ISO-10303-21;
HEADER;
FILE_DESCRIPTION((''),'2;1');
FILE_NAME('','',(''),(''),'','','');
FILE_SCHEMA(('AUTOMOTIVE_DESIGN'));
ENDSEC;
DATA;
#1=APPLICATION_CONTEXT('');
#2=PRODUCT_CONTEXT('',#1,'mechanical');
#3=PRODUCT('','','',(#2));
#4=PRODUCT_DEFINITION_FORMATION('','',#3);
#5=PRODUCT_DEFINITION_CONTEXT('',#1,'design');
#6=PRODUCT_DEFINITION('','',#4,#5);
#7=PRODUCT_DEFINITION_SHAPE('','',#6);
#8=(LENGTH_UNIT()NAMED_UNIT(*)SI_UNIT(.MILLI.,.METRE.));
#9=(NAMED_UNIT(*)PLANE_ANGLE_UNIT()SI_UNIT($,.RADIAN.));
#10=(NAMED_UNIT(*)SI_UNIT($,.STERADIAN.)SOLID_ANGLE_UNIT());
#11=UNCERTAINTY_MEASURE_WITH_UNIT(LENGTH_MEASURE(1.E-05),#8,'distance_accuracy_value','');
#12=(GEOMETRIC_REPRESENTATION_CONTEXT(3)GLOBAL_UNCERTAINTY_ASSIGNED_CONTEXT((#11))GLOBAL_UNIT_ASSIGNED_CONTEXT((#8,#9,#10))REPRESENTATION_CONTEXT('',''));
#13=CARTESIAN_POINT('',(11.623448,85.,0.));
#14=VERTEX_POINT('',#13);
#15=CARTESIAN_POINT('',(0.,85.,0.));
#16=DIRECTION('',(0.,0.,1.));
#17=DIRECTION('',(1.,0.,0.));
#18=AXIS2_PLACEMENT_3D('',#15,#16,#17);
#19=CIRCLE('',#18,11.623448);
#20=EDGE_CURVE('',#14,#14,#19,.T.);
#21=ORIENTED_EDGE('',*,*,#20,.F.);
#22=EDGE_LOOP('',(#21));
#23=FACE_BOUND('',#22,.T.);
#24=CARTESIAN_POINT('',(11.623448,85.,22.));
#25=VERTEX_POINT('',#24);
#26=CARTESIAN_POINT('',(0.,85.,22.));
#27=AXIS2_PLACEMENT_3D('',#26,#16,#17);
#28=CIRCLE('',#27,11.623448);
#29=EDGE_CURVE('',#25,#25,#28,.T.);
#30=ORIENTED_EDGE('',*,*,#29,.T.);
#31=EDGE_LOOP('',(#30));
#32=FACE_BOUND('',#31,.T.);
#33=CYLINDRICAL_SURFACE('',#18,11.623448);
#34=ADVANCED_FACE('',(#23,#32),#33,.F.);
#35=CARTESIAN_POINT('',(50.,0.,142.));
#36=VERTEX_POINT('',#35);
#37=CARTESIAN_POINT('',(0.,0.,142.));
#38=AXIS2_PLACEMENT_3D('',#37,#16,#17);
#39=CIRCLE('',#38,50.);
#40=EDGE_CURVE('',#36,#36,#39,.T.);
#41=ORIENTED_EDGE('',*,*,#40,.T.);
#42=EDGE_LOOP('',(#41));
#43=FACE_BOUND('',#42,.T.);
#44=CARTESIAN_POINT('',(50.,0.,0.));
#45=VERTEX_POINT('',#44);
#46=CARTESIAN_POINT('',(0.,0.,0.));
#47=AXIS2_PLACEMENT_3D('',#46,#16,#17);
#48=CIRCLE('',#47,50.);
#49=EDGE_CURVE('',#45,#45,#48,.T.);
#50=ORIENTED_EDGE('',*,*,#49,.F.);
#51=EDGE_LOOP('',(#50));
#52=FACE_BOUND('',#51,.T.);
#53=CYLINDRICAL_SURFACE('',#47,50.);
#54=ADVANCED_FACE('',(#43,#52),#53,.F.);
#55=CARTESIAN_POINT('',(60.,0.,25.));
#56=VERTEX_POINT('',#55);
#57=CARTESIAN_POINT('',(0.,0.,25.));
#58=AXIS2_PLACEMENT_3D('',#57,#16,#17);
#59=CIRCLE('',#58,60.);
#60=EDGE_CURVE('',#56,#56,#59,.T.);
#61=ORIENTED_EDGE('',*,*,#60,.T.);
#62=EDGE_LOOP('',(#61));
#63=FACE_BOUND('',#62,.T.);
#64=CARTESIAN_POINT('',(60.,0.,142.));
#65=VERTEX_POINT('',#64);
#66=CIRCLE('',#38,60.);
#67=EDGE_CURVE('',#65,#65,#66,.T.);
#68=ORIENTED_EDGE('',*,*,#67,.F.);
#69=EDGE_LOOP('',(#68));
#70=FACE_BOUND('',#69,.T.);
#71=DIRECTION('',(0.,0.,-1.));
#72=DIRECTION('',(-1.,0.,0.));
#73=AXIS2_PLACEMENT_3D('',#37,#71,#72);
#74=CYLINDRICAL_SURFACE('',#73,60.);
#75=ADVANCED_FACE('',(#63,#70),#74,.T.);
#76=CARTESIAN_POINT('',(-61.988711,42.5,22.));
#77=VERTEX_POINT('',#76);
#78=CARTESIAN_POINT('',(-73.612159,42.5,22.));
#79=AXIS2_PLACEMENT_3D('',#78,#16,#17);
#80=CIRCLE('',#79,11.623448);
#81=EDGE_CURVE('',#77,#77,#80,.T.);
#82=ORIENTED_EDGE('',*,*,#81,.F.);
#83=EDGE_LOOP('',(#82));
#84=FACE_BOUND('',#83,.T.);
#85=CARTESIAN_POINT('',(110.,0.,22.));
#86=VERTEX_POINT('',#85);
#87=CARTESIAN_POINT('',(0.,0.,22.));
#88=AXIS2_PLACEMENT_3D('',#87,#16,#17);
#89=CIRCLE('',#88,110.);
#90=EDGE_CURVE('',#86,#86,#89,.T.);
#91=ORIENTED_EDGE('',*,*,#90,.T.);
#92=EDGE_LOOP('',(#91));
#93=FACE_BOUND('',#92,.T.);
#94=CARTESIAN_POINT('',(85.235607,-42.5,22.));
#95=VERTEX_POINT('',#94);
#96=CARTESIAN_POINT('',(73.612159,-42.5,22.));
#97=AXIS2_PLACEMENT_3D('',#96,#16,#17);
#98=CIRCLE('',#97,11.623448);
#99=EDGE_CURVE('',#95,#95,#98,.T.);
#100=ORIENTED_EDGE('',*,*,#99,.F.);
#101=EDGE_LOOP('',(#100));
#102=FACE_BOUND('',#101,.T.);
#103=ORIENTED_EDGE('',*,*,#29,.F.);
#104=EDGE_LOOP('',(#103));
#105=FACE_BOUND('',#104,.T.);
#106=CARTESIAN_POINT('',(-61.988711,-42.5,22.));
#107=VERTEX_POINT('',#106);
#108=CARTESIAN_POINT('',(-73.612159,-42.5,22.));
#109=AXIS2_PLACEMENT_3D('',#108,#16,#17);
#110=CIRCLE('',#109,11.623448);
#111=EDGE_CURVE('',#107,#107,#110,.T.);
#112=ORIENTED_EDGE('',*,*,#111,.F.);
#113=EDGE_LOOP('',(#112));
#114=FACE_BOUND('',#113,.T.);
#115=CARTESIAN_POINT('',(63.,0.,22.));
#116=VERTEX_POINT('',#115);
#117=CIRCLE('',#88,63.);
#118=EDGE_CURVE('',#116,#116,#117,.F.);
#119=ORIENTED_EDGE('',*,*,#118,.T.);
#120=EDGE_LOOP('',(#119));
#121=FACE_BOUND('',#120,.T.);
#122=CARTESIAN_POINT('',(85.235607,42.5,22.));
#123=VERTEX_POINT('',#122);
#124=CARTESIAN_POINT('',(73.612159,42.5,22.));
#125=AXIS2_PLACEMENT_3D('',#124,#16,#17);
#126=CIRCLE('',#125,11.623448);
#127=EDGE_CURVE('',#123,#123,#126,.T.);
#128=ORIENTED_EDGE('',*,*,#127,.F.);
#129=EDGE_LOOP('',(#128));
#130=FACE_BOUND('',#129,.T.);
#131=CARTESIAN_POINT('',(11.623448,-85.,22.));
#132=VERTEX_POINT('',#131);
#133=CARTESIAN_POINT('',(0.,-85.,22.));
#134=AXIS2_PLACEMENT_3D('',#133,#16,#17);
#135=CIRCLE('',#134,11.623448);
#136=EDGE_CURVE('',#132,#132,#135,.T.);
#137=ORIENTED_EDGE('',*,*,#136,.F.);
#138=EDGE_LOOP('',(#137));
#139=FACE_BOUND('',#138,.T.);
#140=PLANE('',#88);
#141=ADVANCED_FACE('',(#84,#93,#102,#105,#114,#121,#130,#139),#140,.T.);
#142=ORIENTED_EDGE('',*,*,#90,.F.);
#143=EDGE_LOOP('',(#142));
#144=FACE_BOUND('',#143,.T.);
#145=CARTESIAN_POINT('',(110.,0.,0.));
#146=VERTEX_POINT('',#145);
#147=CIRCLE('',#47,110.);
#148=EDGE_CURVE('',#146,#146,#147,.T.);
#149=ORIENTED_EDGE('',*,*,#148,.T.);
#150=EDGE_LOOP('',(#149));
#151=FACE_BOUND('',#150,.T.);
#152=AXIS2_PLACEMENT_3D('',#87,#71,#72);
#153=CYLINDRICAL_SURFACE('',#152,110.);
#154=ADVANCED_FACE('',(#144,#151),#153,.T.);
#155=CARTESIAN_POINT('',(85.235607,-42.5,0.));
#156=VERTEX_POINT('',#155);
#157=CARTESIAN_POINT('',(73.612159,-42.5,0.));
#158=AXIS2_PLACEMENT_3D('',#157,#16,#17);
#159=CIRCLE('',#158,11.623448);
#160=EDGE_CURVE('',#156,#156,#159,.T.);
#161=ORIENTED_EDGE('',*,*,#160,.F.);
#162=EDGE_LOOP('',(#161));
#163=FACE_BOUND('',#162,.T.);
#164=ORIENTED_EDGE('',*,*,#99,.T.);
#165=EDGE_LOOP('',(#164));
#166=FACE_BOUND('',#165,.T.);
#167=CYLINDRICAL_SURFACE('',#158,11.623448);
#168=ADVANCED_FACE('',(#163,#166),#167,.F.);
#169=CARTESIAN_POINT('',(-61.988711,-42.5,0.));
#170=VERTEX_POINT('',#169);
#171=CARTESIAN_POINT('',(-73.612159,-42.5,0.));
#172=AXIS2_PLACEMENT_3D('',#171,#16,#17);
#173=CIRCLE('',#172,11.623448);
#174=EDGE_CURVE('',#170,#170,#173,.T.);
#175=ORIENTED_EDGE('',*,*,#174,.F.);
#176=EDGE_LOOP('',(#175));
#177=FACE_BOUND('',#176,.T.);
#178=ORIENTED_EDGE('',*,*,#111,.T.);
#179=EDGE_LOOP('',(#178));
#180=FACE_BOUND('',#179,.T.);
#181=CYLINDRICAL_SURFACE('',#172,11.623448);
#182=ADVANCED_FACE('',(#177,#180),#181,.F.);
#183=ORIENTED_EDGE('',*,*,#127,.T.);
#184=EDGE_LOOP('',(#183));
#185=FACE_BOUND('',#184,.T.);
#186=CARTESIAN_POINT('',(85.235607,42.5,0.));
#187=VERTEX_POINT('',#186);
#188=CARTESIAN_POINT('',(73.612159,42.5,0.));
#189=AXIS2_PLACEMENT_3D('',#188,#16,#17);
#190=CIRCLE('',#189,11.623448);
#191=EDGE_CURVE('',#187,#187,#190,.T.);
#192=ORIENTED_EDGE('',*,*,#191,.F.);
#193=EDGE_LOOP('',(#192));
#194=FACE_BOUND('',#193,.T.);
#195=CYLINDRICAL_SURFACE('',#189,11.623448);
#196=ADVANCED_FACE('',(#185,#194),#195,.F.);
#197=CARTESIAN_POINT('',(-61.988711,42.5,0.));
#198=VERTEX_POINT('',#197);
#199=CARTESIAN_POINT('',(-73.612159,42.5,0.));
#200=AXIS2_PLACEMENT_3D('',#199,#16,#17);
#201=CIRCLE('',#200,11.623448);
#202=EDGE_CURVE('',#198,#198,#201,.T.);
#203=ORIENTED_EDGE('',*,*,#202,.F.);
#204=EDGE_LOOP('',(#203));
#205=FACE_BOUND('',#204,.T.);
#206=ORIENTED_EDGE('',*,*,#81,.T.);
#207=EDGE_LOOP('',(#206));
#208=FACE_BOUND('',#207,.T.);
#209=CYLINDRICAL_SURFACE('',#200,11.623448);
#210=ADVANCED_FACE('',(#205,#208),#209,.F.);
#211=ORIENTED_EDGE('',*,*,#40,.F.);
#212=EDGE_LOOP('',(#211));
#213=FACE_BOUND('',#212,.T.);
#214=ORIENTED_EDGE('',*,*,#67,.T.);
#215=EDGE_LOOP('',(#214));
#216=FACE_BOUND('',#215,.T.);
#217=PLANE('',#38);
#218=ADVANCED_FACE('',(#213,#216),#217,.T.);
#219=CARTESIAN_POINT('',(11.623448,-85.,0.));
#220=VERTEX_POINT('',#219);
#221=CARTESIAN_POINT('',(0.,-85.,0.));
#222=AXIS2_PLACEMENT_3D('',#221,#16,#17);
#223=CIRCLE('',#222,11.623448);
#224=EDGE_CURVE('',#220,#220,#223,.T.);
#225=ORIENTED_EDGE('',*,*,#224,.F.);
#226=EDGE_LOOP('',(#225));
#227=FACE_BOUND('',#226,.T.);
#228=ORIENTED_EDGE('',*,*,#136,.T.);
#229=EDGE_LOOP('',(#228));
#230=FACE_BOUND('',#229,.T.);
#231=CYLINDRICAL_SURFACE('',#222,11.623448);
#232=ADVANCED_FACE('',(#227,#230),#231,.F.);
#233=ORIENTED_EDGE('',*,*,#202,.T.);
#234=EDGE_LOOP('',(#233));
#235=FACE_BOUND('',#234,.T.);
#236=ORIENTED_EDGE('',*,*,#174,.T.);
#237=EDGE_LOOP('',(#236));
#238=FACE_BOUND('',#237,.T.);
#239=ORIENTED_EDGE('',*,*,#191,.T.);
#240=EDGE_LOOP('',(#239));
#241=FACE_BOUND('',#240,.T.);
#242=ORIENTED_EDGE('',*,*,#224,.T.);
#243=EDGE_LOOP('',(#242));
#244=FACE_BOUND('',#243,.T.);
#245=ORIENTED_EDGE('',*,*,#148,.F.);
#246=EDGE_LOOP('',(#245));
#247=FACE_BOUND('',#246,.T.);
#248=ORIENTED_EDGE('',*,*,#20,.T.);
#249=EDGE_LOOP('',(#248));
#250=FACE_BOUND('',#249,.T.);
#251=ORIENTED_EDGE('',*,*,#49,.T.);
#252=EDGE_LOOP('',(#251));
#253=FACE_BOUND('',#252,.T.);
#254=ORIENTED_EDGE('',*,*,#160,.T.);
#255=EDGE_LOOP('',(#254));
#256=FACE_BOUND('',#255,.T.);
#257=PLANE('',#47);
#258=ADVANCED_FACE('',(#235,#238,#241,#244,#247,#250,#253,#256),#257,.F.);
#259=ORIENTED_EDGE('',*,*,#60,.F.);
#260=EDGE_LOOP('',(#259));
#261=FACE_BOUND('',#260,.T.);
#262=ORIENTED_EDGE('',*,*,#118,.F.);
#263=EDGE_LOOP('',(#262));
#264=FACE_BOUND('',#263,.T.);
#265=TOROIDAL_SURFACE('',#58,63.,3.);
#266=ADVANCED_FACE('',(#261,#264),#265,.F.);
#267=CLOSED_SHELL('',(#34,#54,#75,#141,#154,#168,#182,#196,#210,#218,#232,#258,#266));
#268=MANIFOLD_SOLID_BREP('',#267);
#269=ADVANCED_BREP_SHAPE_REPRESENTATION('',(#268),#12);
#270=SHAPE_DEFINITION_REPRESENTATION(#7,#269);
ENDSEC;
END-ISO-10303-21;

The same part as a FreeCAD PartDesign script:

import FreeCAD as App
import Part
import Sketcher


def edges_at(feature, points):
    """Names of the edges that pass closest to the given points."""
    edges = feature.Shape.Edges
    near = lambda p: min(range(len(edges)), key=lambda i: edges[i].distToShape(Part.Vertex(*p))[0])
    return sorted({f"Edge{near(p) + 1}" for p in points})

doc = App.newDocument("Part")
params = doc.addObject("Spreadsheet::Sheet", "Params")
for row, (alias, value) in enumerate([
    ("sketch1_diameter", "220 mm"),
    ("pad1_length", "22 mm"),
    ("sketch2_diameter", "120 mm"),
    ("pad2_length", "120 mm"),
    ("sketch3_diameter", "100 mm"),
    ("fillet_radius", "3 mm"),
], start=1):
    params.set(f"A{row}", alias)
    params.set(f"B{row}", "=" + value)
    params.setAlias(f"B{row}", alias)

body = doc.addObject("PartDesign::Body", "Body")

sketch1 = doc.addObject("Sketcher::SketchObject", "Sketch")
body.addObject(sketch1)
sketch1.AttachmentSupport = (doc.XY_Plane, [""])
sketch1.MapMode = "FlatFace"
sketch1.addGeometry(Part.Circle(App.Vector(0, 0, 0), App.Vector(0, 0, 1), 110), False)
sketch1.addConstraint(Sketcher.Constraint("Coincident", 0, 3, -1, 1))
sketch1.addConstraint(Sketcher.Constraint("Diameter", 0, 220.0))
sketch1.setExpression("Constraints[1]", "Params.sketch1_diameter")
pad1 = doc.addObject("PartDesign::Pad", "Pad")
body.addObject(pad1)
pad1.Profile = sketch1
pad1.setExpression("Length", "Params.pad1_length")

sketch2 = doc.addObject("Sketcher::SketchObject", "Sketch001")
body.addObject(sketch2)
sketch2.AttachmentSupport = (doc.XY_Plane, [""])
sketch2.MapMode = "FlatFace"
sketch2.AttachmentOffset = App.Placement(App.Vector(0, 0, 22), App.Rotation())
sketch2.addGeometry(Part.Circle(App.Vector(0, 0, 0), App.Vector(0, 0, 1), 60), False)
sketch2.addConstraint(Sketcher.Constraint("Coincident", 0, 3, -1, 1))
sketch2.addConstraint(Sketcher.Constraint("Diameter", 0, 120.0))
sketch2.setExpression("Constraints[1]", "Params.sketch2_diameter")
pad2 = doc.addObject("PartDesign::Pad", "Pad001")
body.addObject(pad2)
pad2.Profile = sketch2
pad2.setExpression("Length", "Params.pad2_length")

sketch3 = doc.addObject("Sketcher::SketchObject", "Sketch002")
body.addObject(sketch3)
sketch3.AttachmentSupport = (doc.XY_Plane, [""])
sketch3.MapMode = "FlatFace"
sketch3.AttachmentOffset = App.Placement(App.Vector(0, 0, 142), App.Rotation())
sketch3.addGeometry(Part.Circle(App.Vector(0, 0, 0), App.Vector(0, 0, 1), 50), False)
sketch3.addConstraint(Sketcher.Constraint("Coincident", 0, 3, -1, 1))
sketch3.addConstraint(Sketcher.Constraint("Diameter", 0, 100.0))
sketch3.setExpression("Constraints[1]", "Params.sketch3_diameter")
pocket1 = doc.addObject("PartDesign::Pocket", "Pocket")
body.addObject(pocket1)
pocket1.Profile = sketch3
pocket1.Type = "ThroughAll"

sketch4 = doc.addObject("Sketcher::SketchObject", "Sketch003")
body.addObject(sketch4)
sketch4.AttachmentSupport = (doc.XY_Plane, [""])
sketch4.MapMode = "FlatFace"
sketch4.AttachmentOffset = App.Placement(App.Vector(0, 0, 22), App.Rotation())
sketch4.addGeometry(Part.Circle(App.Vector(0, 85, 0), App.Vector(0, 0, 1), 11.623448), False)
sketch4.addGeometry(Part.Circle(App.Vector(73.612159, 42.5, 0), App.Vector(0, 0, 1), 11.623448), False)
sketch4.addGeometry(Part.Circle(App.Vector(73.612159, -42.5, 0), App.Vector(0, 0, 1), 11.623448), False)
sketch4.addGeometry(Part.Circle(App.Vector(0, -85, 0), App.Vector(0, 0, 1), 11.623448), False)
sketch4.addGeometry(Part.Circle(App.Vector(-73.612159, -42.5, 0), App.Vector(0, 0, 1), 11.623448), False)
sketch4.addGeometry(Part.Circle(App.Vector(-73.612159, 42.5, 0), App.Vector(0, 0, 1), 11.623448), False)
sketch4.addConstraint(Sketcher.Constraint("Equal", 0, 1))
sketch4.addConstraint(Sketcher.Constraint("Equal", 1, 2))
sketch4.addConstraint(Sketcher.Constraint("Equal", 2, 3))
sketch4.addConstraint(Sketcher.Constraint("Equal", 3, 4))
sketch4.addConstraint(Sketcher.Constraint("Equal", 4, 5))
sketch4.addConstraint(Sketcher.Constraint("Symmetric", 0, 3, 3, 3, -1, 1))
sketch4.addConstraint(Sketcher.Constraint("Symmetric", 1, 3, 4, 3, -1, 1))
sketch4.addConstraint(Sketcher.Constraint("Symmetric", 2, 3, 5, 3, -1, 1))
sketch4.addConstraint(Sketcher.Constraint("Symmetric", 2, 3, 4, 3, -2))
sketch4.addConstraint(Sketcher.Constraint("PointOnObject", 0, 3, -2))
sketch4.addConstraint(Sketcher.Constraint("DistanceY", -1, 1, 0, 3, 85.0))
sketch4.addConstraint(Sketcher.Constraint("DistanceY", 2, 3, 1, 3, 85.0))
sketch4.addConstraint(Sketcher.Constraint("Diameter", 0, 23.246896))
sketch4.addConstraint(Sketcher.Constraint("DistanceX", -1, 1, 1, 3, 73.612159))
pocket2 = doc.addObject("PartDesign::Pocket", "Pocket001")
body.addObject(pocket2)
pocket2.Profile = sketch4
pocket2.Type = "ThroughAll"
doc.recompute()

fillet = doc.addObject("PartDesign::Fillet", "Fillet")
body.addObject(fillet)
fillet.Base = (pocket2, edges_at(pocket2, [(-60, 0, 22)]))
fillet.setExpression("Radius", "Params.fillet_radius")

doc.recompute()
